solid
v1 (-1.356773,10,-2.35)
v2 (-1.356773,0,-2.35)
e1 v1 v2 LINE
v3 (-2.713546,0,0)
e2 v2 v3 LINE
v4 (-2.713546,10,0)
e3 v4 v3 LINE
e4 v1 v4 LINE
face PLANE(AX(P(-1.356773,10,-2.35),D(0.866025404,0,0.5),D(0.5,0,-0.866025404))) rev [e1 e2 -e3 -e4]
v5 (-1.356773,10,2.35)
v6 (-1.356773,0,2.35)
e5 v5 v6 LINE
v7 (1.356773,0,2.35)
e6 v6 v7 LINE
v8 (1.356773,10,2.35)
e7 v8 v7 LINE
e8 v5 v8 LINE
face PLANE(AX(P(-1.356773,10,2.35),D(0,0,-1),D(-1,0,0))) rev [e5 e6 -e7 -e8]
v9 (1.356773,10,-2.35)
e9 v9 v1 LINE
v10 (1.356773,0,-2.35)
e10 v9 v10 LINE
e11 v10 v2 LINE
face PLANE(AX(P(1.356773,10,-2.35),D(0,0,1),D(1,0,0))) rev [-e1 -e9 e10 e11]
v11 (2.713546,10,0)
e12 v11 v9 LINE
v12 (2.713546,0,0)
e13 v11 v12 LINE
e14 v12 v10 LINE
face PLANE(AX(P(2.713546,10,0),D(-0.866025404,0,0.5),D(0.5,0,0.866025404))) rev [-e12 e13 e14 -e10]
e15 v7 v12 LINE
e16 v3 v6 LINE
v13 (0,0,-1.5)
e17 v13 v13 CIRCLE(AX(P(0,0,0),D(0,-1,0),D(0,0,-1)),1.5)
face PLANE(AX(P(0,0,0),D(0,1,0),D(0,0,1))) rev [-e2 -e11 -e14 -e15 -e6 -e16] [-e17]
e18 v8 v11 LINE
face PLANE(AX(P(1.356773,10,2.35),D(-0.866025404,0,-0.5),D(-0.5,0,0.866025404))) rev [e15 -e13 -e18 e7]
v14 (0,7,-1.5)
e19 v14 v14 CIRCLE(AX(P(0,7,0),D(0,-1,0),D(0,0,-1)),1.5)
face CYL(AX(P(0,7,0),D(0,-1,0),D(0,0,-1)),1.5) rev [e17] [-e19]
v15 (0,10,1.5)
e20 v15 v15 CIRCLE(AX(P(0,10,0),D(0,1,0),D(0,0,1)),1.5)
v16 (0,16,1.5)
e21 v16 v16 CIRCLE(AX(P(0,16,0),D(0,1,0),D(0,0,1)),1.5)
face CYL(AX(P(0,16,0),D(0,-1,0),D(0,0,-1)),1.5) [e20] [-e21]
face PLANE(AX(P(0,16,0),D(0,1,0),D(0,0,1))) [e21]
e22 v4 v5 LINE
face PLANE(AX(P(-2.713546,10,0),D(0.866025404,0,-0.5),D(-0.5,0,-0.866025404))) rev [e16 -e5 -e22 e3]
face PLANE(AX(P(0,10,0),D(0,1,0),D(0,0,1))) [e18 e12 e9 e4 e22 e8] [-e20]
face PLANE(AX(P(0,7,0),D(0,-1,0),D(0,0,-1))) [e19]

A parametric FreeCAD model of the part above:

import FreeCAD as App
import Part
import Sketcher
from FreeCAD import Vector
Q = App.Units.Quantity

doc = App.newDocument("Part")
params = doc.addObject("Spreadsheet::Sheet", "Params")
for row, (alias, value) in enumerate([
    ("pad1_length", "10 mm"),
    ("sketch2_diameter", "3 mm"),
    ("pad2_length", "6 mm"),
    ("sketch3_diameter", "3 mm"),
    ("pocket1_length", "7 mm"),
], start=1):
    params.set(f"A{row}", alias)
    params.set(f"B{row}", "=" + value)
    params.setAlias(f"B{row}", alias)

body = doc.addObject("PartDesign::Body", "Body")

# Sketch on XZ plane
sketch1 = doc.addObject("Sketcher::SketchObject", "Sketch")
body.addObject(sketch1)
sketch1.AttachmentSupport = (doc.XZ_Plane, [""])
sketch1.MapMode = "FlatFace"
sketch1.addGeometry([
    Part.LineSegment(Vector(1.4, -2.4, 0), Vector(-1.4, -2.4, 0)),  # 0
    Part.LineSegment(Vector(-1.4, -2.4, 0), Vector(-2.7, 0, 0)),  # 1
    Part.LineSegment(Vector(-2.7, 0, 0), Vector(-1.4, 2.4, 0)),  # 2
    Part.LineSegment(Vector(-1.4, 2.4, 0), Vector(1.4, 2.4, 0)),  # 3
    Part.LineSegment(Vector(1.4, 2.4, 0), Vector(2.7, 0, 0)),  # 4
    Part.LineSegment(Vector(2.7, 0, 0), Vector(1.4, -2.4, 0)),  # 5
], False)
sketch1.addConstraint([
    Sketcher.Constraint("Coincident", 0, 2, 1, 1),
    Sketcher.Constraint("Coincident", 1, 2, 2, 1),
    Sketcher.Constraint("Coincident", 2, 2, 3, 1),
    Sketcher.Constraint("Coincident", 3, 2, 4, 1),
    Sketcher.Constraint("Coincident", 4, 2, 5, 1),
    Sketcher.Constraint("Coincident", 5, 2, 0, 1),
    Sketcher.Constraint("Horizontal", 0),
    Sketcher.Constraint("Horizontal", 3),
    Sketcher.Constraint("Symmetric", 0, 2, 3, 2, -1, 1),
    Sketcher.Constraint("Symmetric", 1, 2, 4, 2, -1, 1),
    Sketcher.Constraint("PointOnObject", 1, 2, -1),
    Sketcher.Constraint("Parallel", 2, 5),
    Sketcher.Constraint("Vertical", 0, 2, 2, 2),
    Sketcher.Constraint("Angle", 1, Q("120 deg")),
    Sketcher.Constraint("DistanceY", 0, 2, 2, 2, Q("4.7 mm")),
    Sketcher.Constraint("DistanceX", 0, 2, 0, 1, Q("2.713546 mm")),
])
pad1 = doc.addObject("PartDesign::Pad", "Pad")
body.addObject(pad1)
pad1.Profile = sketch1
pad1.setExpression("Length", "Params.pad1_length")
pad1.Reversed = True

# Sketch on XZ plane
sketch2 = doc.addObject("Sketcher::SketchObject", "Sketch001")
body.addObject(sketch2)
sketch2.AttachmentSupport = (doc.XZ_Plane, [""])
sketch2.MapMode = "FlatFace"
sketch2.AttachmentOffset = App.Placement(Vector(0, 0, -10), App.Rotation())
sketch2.addGeometry(Part.Circle(Vector(0, 0, 0), Vector(0, 0, 1), 1.5), False)
sketch2.addConstraint([
    Sketcher.Constraint("Coincident", 0, 3, -1, 1),
    Sketcher.Constraint("Diameter", 0, Q("3 mm")),
])
sketch2.setExpression("Constraints[1]", "Params.sketch2_diameter")
pad2 = doc.addObject("PartDesign::Pad", "Pad001")
body.addObject(pad2)
pad2.Profile = sketch2
pad2.setExpression("Length", "Params.pad2_length")
pad2.Reversed = True

# Sketch on XZ plane
sketch3 = doc.addObject("Sketcher::SketchObject", "Sketch002")
body.addObject(sketch3)
sketch3.AttachmentSupport = (doc.XZ_Plane, [""])
sketch3.MapMode = "FlatFace"
sketch3.addGeometry(Part.Circle(Vector(0, 0, 0), Vector(0, 0, 1), 1.5), False)
sketch3.addConstraint([
    Sketcher.Constraint("Coincident", 0, 3, -1, 1),
    Sketcher.Constraint("Diameter", 0, Q("3 mm")),
])
sketch3.setExpression("Constraints[1]", "Params.sketch3_diameter")
pocket1 = doc.addObject("PartDesign::Pocket", "Pocket")
body.addObject(pocket1)
pocket1.Profile = sketch3
pocket1.setExpression("Length", "Params.pocket1_length")

doc.recompute()
